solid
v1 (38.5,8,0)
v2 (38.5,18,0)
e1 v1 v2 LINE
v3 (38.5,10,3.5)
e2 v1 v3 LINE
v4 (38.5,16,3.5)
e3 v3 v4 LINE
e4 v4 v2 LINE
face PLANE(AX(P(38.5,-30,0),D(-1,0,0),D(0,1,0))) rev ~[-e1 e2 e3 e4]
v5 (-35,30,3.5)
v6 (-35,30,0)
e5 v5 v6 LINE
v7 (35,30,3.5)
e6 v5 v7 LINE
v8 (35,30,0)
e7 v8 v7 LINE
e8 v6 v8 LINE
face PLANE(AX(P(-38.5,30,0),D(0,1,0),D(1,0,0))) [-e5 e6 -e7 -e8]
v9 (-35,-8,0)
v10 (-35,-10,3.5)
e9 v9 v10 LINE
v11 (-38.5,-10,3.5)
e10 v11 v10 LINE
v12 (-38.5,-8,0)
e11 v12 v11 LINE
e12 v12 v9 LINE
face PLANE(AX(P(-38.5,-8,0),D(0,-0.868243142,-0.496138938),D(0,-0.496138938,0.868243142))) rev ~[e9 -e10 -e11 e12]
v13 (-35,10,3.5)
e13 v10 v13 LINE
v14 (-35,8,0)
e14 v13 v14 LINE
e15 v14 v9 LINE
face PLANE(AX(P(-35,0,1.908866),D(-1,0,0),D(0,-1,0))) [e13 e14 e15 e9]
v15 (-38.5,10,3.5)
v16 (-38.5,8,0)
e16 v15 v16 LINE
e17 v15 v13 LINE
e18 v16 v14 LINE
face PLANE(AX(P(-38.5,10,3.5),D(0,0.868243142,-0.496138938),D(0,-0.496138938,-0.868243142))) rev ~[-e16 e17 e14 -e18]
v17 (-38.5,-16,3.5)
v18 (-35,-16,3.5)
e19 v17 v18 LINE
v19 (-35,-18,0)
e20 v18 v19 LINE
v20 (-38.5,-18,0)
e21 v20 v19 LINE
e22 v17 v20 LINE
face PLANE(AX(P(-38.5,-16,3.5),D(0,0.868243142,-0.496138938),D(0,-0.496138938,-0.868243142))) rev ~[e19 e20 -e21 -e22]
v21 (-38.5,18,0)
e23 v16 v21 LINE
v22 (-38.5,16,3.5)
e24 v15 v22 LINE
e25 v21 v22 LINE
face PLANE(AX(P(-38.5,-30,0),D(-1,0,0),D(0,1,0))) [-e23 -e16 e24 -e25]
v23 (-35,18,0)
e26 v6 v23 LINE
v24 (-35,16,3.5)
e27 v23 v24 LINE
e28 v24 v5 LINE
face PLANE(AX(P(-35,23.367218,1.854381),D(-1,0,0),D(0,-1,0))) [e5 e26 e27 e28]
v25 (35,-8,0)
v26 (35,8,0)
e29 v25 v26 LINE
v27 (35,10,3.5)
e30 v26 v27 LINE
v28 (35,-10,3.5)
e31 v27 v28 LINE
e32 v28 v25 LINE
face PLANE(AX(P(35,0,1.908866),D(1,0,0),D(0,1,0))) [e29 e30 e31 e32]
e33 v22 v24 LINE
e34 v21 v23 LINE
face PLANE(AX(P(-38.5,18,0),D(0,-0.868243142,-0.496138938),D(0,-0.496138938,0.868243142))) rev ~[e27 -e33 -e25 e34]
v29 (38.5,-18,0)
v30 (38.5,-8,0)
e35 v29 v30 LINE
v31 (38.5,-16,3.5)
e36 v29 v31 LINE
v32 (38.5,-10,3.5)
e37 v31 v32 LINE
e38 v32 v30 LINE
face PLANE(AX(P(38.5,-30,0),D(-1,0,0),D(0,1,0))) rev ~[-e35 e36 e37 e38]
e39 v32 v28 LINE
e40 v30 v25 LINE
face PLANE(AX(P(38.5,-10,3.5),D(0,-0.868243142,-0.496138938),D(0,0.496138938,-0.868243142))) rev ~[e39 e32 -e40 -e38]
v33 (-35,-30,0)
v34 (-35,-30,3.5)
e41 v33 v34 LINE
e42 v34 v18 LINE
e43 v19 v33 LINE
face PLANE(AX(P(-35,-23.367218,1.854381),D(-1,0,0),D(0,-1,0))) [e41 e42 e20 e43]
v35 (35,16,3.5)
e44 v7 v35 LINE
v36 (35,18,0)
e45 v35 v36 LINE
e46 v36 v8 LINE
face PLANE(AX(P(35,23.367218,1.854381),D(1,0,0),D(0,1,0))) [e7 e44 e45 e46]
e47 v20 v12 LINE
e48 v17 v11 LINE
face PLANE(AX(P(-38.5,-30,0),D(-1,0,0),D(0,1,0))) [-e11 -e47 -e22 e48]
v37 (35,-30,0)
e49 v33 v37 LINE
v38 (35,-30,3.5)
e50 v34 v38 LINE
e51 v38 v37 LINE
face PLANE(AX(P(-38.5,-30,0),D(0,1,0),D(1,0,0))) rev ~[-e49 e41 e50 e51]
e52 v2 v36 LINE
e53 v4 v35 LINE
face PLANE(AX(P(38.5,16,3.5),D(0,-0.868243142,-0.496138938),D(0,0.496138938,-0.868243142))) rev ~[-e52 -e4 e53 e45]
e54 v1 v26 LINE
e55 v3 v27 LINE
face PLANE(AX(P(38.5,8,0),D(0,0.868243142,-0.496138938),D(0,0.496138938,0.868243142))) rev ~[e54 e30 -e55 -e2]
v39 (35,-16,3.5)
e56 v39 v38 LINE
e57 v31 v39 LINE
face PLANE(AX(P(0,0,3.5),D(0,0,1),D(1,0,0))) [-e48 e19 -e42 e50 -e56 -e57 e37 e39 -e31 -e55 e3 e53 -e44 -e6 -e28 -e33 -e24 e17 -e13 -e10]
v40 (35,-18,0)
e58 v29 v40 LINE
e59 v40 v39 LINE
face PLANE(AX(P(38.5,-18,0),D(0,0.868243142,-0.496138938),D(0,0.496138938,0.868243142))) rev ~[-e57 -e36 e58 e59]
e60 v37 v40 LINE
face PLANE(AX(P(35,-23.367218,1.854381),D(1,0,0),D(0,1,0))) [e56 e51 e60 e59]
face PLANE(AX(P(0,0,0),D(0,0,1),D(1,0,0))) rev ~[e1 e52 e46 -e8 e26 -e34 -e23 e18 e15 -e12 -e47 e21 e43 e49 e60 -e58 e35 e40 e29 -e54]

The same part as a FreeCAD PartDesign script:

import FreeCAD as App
import Part
import Sketcher

V = App.Vector


def add_polygon(sketch, points):
    """Adds a closed chain of lines whose ends are joined by coincident constraints."""
    first, n = sketch.GeometryCount, len(points)
    for a, b in zip(points, points[1:] + points[:1]):
        sketch.addGeometry(Part.LineSegment(App.Vector(*a, 0), App.Vector(*b, 0)), False)
    for i in range(n):
        sketch.addConstraint(Sketcher.Constraint("Coincident", first + i, 2, first + (i + 1) % n, 1))

doc = App.newDocument("Part")
params = doc.addObject("Spreadsheet::Sheet", "Params")
for row, (alias, value) in enumerate([
    ("sketch1_width", "77 mm"),
    ("sketch1_height", "60 mm"),
    ("pad1_length", "3.5 mm"),
    ("sketch2_width", "14 mm"),
    ("sketch2_width2", "12 mm"),
    ("sketch2_width3", "20 mm"),
    ("sketch2_height", "3.5 mm"),
    ("pocket1_length", "3.5 mm"),
    ("sketch3_width", "14 mm"),
    ("sketch3_width2", "12 mm"),
    ("sketch3_width3", "20 mm"),
    ("sketch3_height", "3.5 mm"),
    ("pocket2_length", "3.5 mm"),
], start=1):
    params.set(f"A{row}", alias)
    params.set(f"B{row}", "=" + value)
    params.setAlias(f"B{row}", alias)

body = doc.addObject("PartDesign::Body", "Body")

# Sketch on XY plane
sketch1 = body.newObject("Sketcher::SketchObject", "Sketch")
sketch1.AttachmentSupport = (doc.getObject("XY_Plane"), [""])
sketch1.MapMode = "FlatFace"
add_polygon(sketch1, [(-38.5, 30), (-38.5, -30), (38.5, -30), (38.5, 30)])  # lines 0-3
sketch1.addConstraint([
    Sketcher.Constraint("Vertical", 0),
    Sketcher.Constraint("Horizontal", 1),
    Sketcher.Constraint("Vertical", 2),
    Sketcher.Constraint("Horizontal", 3),
    Sketcher.Constraint("Symmetric", 0, 2, 2, 2, -1, 1),
    Sketcher.Constraint("DistanceX", 1, 1, 1, 2, 77.0),
    Sketcher.Constraint("DistanceY", 0, 2, 0, 1, 60.0),
])
sketch1.setExpression("Constraints[9]", "Params.sketch1_width")
sketch1.setExpression("Constraints[10]", "Params.sketch1_height")
pad1 = body.newObject("PartDesign::Pad", "Pad")
pad1.Profile = sketch1
pad1.setExpression("Length", "Params.pad1_length")

# Sketch on YZ plane
sketch2 = body.newObject("Sketcher::SketchObject", "Sketch001")
sketch2.AttachmentSupport = (doc.getObject("YZ_Plane"), [""])
sketch2.MapMode = "FlatFace"
sketch2.AttachmentOffset = App.Placement(V(0, 0, -38.5), App.Rotation())
add_polygon(sketch2, [(16, 3.5), (30, 3.5), (30, 0), (18, 0)])  # lines 0-3
add_polygon(sketch2, [(-10, 3.5), (10, 3.5), (8, 0), (-8, 0)])  # lines 4-7
add_polygon(sketch2, [(-30, 3.5), (-16, 3.5), (-18, 0), (-30, 0)])  # lines 8-11
sketch2.addConstraint([
    Sketcher.Constraint("Horizontal", 0),
    Sketcher.Constraint("Vertical", 1),
    Sketcher.Constraint("Horizontal", 2),
    Sketcher.Constraint("Horizontal", 4),
    Sketcher.Constraint("Horizontal", 6),
    Sketcher.Constraint("Horizontal", 8),
    Sketcher.Constraint("Horizontal", 10),
    Sketcher.Constraint("Vertical", 11),
    Sketcher.Constraint("Symmetric", 5, 2, 6, 2, -1, 1),
    Sketcher.Constraint("Symmetric", 2, 2, 9, 2, -1, 1),
    Sketcher.Constraint("Symmetric", 3, 2, 8, 2, -2),
    Sketcher.Constraint("Symmetric", 1, 2, 10, 2, -2),
    Sketcher.Constraint("Parallel", 3, 7),
    Sketcher.Constraint("Parallel", 5, 9),
    Sketcher.Constraint("Horizontal", 3, 2, 4, 2),
    Sketcher.Constraint("DistanceX", 0, 1, 0, 2, 14.0),
    Sketcher.Constraint("DistanceX", 2, 2, 2, 1, 12.0),
    Sketcher.Constraint("DistanceX", 4, 1, 4, 2, 20.0),
    Sketcher.Constraint("DistanceY", 1, 2, 1, 1, 3.5),
    Sketcher.Constraint("DistanceX", -1, 1, 0, 2, 30.0),
])
sketch2.setExpression("Constraints[27]", "Params.sketch2_width")
sketch2.setExpression("Constraints[28]", "Params.sketch2_width2")
sketch2.setExpression("Constraints[29]", "Params.sketch2_width3")
sketch2.setExpression("Constraints[30]", "Params.sketch2_height")
pocket1 = body.newObject("PartDesign::Pocket", "Pocket")
pocket1.Profile = sketch2
pocket1.setExpression("Length", "Params.pocket1_length")
pocket1.Reversed = True

# Sketch on YZ plane
sketch3 = body.newObject("Sketcher::SketchObject", "Sketch002")
sketch3.AttachmentSupport = (doc.getObject("YZ_Plane"), [""])
sketch3.MapMode = "FlatFace"
sketch3.AttachmentOffset = App.Placement(V(0, 0, 38.5), App.Rotation())
add_polygon(sketch3, [(-18, 0), (-16, 3.5), (-30, 3.5), (-30, 0)])  # lines 0-3
add_polygon(sketch3, [(8, 0), (10, 3.5), (-10, 3.5), (-8, 0)])  # lines 4-7
add_polygon(sketch3, [(30, 0), (30, 3.5), (16, 3.5), (18, 0)])  # lines 8-11
sketch3.addConstraint([
    Sketcher.Constraint("Horizontal", 1),
    Sketcher.Constraint("Vertical", 2),
    Sketcher.Constraint("Horizontal", 3),
    Sketcher.Constraint("Horizontal", 5),
    Sketcher.Constraint("Horizontal", 7),
    Sketcher.Constraint("Vertical", 8),
    Sketcher.Constraint("Horizontal", 9),
    Sketcher.Constraint("Horizontal", 11),
    Sketcher.Constraint("Symmetric", 6, 2, 7, 2, -1, 1),
    Sketcher.Constraint("Symmetric", 3, 2, 10, 2, -1, 1),
    Sketcher.Constraint("Symmetric", 1, 2, 8, 2, -2),
    Sketcher.Constraint("PointOnObject", 2, 2, -1),
    Sketcher.Constraint("Parallel", 0, 4),
    Sketcher.Constraint("Parallel", 6, 10),
    Sketcher.Constraint("Horizontal", 1, 2, 4, 2),
    Sketcher.Constraint("Equal", 1, 9),
    Sketcher.Constraint("DistanceX", 1, 2, 1, 1, 14.0),
    Sketcher.Constraint("DistanceX", 3, 1, 3, 2, 12.0),
    Sketcher.Constraint("DistanceX", 5, 2, 5, 1, 20.0),
    Sketcher.Constraint("DistanceY", 2, 2, 2, 1, 3.5),
    Sketcher.Constraint("DistanceX", 0, 2, -1, 1, 16.0),
])
sketch3.setExpression("Constraints[28]", "Params.sketch3_width")
sketch3.setExpression("Constraints[29]", "Params.sketch3_width2")
sketch3.setExpression("Constraints[30]", "Params.sketch3_width3")
sketch3.setExpression("Constraints[31]", "Params.sketch3_height")
pocket2 = body.newObject("PartDesign::Pocket", "Pocket001")
pocket2.Profile = sketch3
pocket2.setExpression("Length", "Params.pocket2_length")

doc.recompute()
